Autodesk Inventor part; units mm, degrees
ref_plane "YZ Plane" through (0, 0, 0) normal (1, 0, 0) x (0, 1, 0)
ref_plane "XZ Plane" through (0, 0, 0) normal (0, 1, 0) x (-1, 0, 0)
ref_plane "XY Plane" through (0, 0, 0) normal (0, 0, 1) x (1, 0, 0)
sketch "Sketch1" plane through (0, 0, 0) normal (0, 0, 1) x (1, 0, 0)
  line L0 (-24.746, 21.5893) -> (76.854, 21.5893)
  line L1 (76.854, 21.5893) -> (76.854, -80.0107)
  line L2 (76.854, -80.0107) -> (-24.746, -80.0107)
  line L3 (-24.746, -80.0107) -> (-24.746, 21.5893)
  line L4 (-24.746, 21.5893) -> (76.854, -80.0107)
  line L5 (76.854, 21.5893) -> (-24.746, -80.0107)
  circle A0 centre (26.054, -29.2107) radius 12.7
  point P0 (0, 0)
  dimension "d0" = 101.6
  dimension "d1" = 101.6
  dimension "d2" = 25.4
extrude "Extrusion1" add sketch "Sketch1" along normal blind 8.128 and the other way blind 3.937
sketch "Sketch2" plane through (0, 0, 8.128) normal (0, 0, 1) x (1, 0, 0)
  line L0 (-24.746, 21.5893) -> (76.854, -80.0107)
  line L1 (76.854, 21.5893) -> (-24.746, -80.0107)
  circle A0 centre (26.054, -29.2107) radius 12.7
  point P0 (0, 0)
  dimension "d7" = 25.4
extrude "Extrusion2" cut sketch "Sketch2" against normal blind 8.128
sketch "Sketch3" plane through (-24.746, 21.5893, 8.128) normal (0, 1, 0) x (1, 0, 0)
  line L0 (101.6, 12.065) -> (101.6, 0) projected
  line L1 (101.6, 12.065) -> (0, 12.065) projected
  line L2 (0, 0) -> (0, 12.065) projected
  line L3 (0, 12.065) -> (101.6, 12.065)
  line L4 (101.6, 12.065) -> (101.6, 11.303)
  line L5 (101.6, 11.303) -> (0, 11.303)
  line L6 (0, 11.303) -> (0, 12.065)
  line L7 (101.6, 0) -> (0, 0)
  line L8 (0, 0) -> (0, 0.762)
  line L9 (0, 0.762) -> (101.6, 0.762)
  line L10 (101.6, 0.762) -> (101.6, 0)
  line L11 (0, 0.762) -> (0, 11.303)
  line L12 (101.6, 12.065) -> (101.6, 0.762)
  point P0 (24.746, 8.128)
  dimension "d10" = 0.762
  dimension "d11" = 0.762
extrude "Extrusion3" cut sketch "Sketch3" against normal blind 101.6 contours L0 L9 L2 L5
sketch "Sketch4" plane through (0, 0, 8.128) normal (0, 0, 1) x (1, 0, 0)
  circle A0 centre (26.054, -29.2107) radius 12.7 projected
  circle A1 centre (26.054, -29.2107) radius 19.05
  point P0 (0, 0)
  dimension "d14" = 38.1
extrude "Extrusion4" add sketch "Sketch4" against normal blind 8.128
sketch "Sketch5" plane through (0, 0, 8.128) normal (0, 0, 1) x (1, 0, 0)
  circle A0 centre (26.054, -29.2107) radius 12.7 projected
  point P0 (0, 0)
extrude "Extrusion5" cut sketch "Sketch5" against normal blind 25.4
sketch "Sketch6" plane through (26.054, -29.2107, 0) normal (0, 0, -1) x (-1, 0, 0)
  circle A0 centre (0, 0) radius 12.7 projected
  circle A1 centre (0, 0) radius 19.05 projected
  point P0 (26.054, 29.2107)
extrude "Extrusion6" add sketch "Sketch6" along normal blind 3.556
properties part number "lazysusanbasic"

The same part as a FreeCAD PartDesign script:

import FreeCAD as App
import Part
import Sketcher

V = App.Vector
Q = App.Units.Quantity


def add_polygon(sketch, points):
    """Adds a closed chain of lines whose ends are joined by coincident constraints."""
    first, n = sketch.GeometryCount, len(points)
    for a, b in zip(points, points[1:] + points[:1]):
        sketch.addGeometry(Part.LineSegment(App.Vector(*a, 0), App.Vector(*b, 0)), False)
    for i in range(n):
        sketch.addConstraint(Sketcher.Constraint("Coincident", first + i, 2, first + (i + 1) % n, 1))

doc = App.newDocument("Part")
body = doc.addObject("PartDesign::Body", "Body")
body.AllowCompound = True

sketch1 = body.newObject("Sketcher::SketchObject", "Sketch")
sketch1.AttachmentSupport = (doc.getObject("XY_Plane"), [""])
sketch1.MapMode = "FlatFace"
add_polygon(sketch1, [(-25, 22), (-25, -80), (77, -80), (77, 22)])
sketch1.addConstraint(Sketcher.Constraint("Vertical", 0))
sketch1.addConstraint(Sketcher.Constraint("Horizontal", 1))
sketch1.addConstraint(Sketcher.Constraint("Vertical", 2))
sketch1.addConstraint(Sketcher.Constraint("Horizontal", 3))
sketch1.addConstraint(Sketcher.Constraint("Equal", 3, 0))
sketch1.addConstraint(Sketcher.Constraint("DistanceX", 1, 1, 1, 2, Q("4 in")))
sketch1.addConstraint(Sketcher.Constraint("DistanceX", 0, 2, -1, 1, Q("24.746 mm")))
sketch1.addConstraint(Sketcher.Constraint("DistanceY", 0, 2, -1, 1, Q("80.0107 mm")))
pad1 = body.newObject("PartDesign::Pad", "Pad")
pad1.Profile = sketch1
pad1.Type = "TwoLengths"
pad1.Length = Q("0.32 in")
pad1.Length2 = Q("0.155 in")

sketch2 = body.newObject("Sketcher::SketchObject", "Sketch001")
sketch2.AttachmentSupport = (doc.getObject("XY_Plane"), [""])
sketch2.MapMode = "FlatFace"
sketch2.AttachmentOffset = App.Placement(V(0, 0, 0.32 * 25.4), App.Rotation())
sketch2.addGeometry(Part.Circle(V(26, -29, 0), V(0, 0, 1), 13), False)
sketch2.addConstraint(Sketcher.Constraint("Diameter", 0, Q("1 in")))
sketch2.addConstraint(Sketcher.Constraint("DistanceX", -1, 1, 0, 3, Q("26.054 mm")))
sketch2.addConstraint(Sketcher.Constraint("DistanceY", 0, 3, -1, 1, Q("29.2107 mm")))
pocket1 = body.newObject("PartDesign::Pocket", "Pocket")
pocket1.Profile = sketch2
pocket1.Length = Q("0.32 in")

sketch3 = body.newObject("Sketcher::SketchObject", "Sketch002")
sketch3.AttachmentSupport = (doc.getObject("XZ_Plane"), [""])
sketch3.MapMode = "FlatFace"
sketch3.AttachmentOffset = App.Placement(V(0, 0, -21.5893), App.Rotation())
add_polygon(sketch3, [(77, 7), (77, -3), (-25, -3), (-25, 7)])
sketch3.addConstraint(Sketcher.Constraint("Vertical", 0))
sketch3.addConstraint(Sketcher.Constraint("Horizontal", 1))
sketch3.addConstraint(Sketcher.Constraint("Vertical", 2))
sketch3.addConstraint(Sketcher.Constraint("Horizontal", 3))
sketch3.addConstraint(Sketcher.Constraint("DistanceX", 1, 2, 1, 1, Q("4 in")))
sketch3.addConstraint(Sketcher.Constraint("DistanceY", 0, 2, 0, 1, Q("0.415 in")))
sketch3.addConstraint(Sketcher.Constraint("DistanceY", -1, 1, 2, 2, Q("0.29 in")))
sketch3.addConstraint(Sketcher.Constraint("DistanceX", -1, 1, 0, 2, Q("76.854 mm")))
pocket2 = body.newObject("PartDesign::Pocket", "Pocket001")
pocket2.Profile = sketch3
pocket2.Length = Q("4 in")
pocket2.Reversed = True

sketch4 = body.newObject("Sketcher::SketchObject", "Sketch003")
sketch4.AttachmentSupport = (doc.getObject("XY_Plane"), [""])
sketch4.MapMode = "FlatFace"
sketch4.AttachmentOffset = App.Placement(V(0, 0, 0.32 * 25.4), App.Rotation())
sketch4.addGeometry(Part.Circle(V(26, -29, 0), V(0, 0, 1), 19), False)
sketch4.addGeometry(Part.Circle(V(26, -29, 0), V(0, 0, 1), 13), False)
sketch4.addConstraint(Sketcher.Constraint("Coincident", 1, 3, 0, 3))
sketch4.addConstraint(Sketcher.Constraint("Diameter", 0, Q("1.5 in")))
sketch4.addConstraint(Sketcher.Constraint("Diameter", 1, Q("1 in")))
sketch4.addConstraint(Sketcher.Constraint("DistanceX", -1, 1, 0, 3, Q("26.054 mm")))
sketch4.addConstraint(Sketcher.Constraint("DistanceY", 0, 3, -1, 1, Q("29.2107 mm")))
pad2 = body.newObject("PartDesign::Pad", "Pad001")
pad2.Profile = sketch4
pad2.Length = Q("0.32 in")
pad2.Reversed = True

sketch5 = body.newObject("Sketcher::SketchObject", "Sketch004")
sketch5.AttachmentSupport = (doc.getObject("XY_Plane"), [""])
sketch5.MapMode = "FlatFace"
sketch5.AttachmentOffset = App.Placement(V(0, 0, 0.32 * 25.4), App.Rotation())
sketch5.addGeometry(Part.Circle(V(26, -29, 0), V(0, 0, 1), 13), False)
sketch5.addConstraint(Sketcher.Constraint("Diameter", 0, Q("1 in")))
sketch5.addConstraint(Sketcher.Constraint("DistanceX", -1, 1, 0, 3, Q("26.054 mm")))
sketch5.addConstraint(Sketcher.Constraint("DistanceY", 0, 3, -1, 1, Q("29.2107 mm")))
pocket3 = body.newObject("PartDesign::Pocket", "Pocket002")
pocket3.Profile = sketch5
pocket3.Length = Q("1 in")

sketch6 = body.newObject("Sketcher::SketchObject", "Sketch005")
sketch6.AttachmentSupport = (doc.getObject("XY_Plane"), [""])
sketch6.MapMode = "FlatFace"
sketch6.addGeometry(Part.Circle(V(26, -29, 0), V(0, 0, 1), 19), False)
sketch6.addGeometry(Part.Circle(V(26, -29, 0), V(0, 0, 1), 13), False)
sketch6.addConstraint(Sketcher.Constraint("Coincident", 1, 3, 0, 3))
sketch6.addConstraint(Sketcher.Constraint("Diameter", 1, Q("1 in")))
sketch6.addConstraint(Sketcher.Constraint("Diameter", 0, Q("1.5 in")))
sketch6.addConstraint(Sketcher.Constraint("DistanceX", -1, 1, 0, 3, Q("26.054 mm")))
sketch6.addConstraint(Sketcher.Constraint("DistanceY", 0, 3, -1, 1, Q("29.2107 mm")))
pad3 = body.newObject("PartDesign::Pad", "Pad002")
pad3.Profile = sketch6
pad3.Length = Q("0.14 in")
pad3.Reversed = True

doc.recompute()
